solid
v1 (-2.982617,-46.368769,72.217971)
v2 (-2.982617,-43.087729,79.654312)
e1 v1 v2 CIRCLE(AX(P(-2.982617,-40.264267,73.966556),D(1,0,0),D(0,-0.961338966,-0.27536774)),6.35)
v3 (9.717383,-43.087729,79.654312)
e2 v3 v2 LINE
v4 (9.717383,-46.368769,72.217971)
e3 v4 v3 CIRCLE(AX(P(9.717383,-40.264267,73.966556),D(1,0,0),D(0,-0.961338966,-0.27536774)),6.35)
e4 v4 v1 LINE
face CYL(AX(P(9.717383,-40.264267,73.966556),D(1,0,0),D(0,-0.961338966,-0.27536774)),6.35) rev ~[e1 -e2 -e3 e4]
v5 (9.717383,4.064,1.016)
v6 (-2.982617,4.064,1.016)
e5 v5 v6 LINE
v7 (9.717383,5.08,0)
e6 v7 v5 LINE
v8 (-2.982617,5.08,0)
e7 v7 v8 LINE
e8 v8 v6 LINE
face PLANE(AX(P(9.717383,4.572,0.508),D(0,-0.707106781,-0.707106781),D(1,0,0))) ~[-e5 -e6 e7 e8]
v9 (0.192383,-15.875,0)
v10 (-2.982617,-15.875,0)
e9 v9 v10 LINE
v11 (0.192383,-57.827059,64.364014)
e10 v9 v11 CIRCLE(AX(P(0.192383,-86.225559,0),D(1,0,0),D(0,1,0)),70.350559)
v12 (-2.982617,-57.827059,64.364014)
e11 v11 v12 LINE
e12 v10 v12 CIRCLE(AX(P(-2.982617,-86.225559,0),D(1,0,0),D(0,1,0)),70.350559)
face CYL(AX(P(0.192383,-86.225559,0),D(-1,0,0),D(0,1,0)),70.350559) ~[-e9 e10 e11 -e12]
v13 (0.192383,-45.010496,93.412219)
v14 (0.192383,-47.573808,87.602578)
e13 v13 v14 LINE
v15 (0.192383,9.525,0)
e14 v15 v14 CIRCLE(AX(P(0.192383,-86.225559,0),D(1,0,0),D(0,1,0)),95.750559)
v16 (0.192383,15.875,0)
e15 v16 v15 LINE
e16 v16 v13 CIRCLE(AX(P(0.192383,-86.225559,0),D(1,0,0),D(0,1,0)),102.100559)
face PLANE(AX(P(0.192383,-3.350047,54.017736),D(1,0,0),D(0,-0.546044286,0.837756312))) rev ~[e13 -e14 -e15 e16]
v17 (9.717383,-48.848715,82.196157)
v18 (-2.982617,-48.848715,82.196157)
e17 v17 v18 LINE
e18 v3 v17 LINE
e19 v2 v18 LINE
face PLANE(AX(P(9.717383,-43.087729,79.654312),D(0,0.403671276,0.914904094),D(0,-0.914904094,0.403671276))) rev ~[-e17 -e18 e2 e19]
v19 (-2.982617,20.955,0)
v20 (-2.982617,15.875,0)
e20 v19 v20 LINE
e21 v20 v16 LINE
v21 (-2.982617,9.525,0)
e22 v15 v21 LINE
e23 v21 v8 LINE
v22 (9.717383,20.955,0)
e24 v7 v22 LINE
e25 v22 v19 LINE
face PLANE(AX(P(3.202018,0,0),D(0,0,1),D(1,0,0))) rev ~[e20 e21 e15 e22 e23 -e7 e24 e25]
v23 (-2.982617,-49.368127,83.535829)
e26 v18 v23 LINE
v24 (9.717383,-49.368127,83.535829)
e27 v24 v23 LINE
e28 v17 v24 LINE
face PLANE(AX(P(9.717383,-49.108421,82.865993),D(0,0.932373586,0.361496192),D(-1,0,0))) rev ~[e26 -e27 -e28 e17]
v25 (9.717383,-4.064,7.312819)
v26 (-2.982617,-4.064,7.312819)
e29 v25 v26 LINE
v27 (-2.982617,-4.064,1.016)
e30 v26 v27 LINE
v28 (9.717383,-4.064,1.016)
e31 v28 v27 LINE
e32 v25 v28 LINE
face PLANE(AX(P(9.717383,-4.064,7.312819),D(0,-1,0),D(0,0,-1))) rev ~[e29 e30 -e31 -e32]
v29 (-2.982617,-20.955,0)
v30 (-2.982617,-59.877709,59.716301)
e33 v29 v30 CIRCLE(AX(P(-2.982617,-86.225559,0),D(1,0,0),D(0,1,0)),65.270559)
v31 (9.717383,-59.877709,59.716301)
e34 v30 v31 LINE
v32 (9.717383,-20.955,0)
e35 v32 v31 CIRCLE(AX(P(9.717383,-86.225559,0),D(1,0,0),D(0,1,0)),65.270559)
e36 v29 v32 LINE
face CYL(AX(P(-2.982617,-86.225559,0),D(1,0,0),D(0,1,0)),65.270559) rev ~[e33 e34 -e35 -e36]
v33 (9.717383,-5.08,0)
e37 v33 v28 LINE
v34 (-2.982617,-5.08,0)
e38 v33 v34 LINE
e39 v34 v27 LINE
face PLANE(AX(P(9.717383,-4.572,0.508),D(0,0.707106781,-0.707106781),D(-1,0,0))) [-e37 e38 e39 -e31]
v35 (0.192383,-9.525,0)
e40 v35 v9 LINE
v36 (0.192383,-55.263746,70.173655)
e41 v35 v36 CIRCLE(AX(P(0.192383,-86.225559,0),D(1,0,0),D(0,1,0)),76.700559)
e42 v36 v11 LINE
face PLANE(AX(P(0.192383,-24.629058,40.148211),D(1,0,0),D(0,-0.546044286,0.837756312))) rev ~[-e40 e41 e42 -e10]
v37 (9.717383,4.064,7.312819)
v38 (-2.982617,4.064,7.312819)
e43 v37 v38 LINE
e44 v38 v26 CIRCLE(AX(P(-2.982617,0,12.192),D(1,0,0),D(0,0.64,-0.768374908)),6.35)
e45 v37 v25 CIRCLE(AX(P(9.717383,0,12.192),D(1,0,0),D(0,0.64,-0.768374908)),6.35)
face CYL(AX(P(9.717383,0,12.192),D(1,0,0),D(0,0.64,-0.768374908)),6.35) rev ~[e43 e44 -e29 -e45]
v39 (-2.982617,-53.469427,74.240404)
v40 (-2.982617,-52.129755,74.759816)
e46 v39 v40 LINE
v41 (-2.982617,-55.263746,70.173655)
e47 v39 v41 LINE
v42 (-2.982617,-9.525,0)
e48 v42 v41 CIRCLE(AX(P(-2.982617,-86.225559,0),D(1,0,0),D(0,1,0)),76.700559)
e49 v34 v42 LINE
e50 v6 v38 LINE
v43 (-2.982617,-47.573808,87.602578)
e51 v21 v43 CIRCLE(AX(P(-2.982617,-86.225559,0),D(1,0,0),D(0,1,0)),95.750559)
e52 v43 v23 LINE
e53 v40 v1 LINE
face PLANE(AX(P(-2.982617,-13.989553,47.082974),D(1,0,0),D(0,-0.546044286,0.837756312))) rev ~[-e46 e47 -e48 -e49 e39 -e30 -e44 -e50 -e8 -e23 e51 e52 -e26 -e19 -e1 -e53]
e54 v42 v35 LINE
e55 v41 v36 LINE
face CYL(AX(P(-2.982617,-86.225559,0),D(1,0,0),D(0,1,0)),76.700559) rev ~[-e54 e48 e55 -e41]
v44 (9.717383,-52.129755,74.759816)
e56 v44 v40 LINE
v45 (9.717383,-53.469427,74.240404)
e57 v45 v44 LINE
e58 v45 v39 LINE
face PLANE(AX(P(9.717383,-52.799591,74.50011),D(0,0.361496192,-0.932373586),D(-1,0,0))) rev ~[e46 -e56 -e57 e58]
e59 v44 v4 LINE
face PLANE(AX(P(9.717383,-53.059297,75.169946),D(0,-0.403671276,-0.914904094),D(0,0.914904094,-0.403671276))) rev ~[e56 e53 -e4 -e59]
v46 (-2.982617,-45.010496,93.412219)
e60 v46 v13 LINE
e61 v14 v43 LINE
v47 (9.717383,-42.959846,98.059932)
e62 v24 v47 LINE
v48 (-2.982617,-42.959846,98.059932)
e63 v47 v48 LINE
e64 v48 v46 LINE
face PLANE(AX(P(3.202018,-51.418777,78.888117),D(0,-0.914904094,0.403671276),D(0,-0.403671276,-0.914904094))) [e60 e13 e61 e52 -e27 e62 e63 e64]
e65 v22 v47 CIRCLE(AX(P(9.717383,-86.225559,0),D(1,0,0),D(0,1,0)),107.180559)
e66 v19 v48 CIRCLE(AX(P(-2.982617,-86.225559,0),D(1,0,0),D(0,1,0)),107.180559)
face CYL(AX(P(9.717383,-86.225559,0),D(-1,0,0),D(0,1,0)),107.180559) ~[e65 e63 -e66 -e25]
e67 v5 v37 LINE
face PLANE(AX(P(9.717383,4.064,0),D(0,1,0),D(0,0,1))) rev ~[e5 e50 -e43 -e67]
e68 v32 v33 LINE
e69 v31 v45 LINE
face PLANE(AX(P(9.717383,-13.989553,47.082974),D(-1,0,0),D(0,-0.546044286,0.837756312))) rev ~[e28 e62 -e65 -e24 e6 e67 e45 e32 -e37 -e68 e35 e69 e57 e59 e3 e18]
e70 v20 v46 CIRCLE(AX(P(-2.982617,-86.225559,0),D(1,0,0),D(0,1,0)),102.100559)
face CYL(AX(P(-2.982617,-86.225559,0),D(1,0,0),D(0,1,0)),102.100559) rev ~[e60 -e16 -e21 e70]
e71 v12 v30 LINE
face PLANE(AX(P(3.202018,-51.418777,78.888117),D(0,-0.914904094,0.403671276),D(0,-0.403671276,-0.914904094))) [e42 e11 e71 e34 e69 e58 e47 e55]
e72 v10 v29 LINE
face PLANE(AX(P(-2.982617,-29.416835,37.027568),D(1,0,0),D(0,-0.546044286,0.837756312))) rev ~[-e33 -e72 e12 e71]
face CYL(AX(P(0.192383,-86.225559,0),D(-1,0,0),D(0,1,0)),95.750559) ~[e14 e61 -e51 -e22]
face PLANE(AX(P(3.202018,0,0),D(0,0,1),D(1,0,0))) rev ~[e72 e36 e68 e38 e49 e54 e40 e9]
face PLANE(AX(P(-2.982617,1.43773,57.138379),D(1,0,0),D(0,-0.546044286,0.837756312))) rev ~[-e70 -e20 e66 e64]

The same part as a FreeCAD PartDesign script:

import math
import FreeCAD as App
import Part
import Sketcher
Q = App.Units.Quantity


def edges_at(feature, points):
    """Names of the edges that pass closest to the given points."""
    edges = feature.Shape.Edges
    near = lambda p: min(range(len(edges)), key=lambda i: edges[i].distToShape(Part.Vertex(*p))[0])
    return sorted({f"Edge{near(p) + 1}" for p in points})

doc = App.newDocument("Part")
params = doc.addObject("Spreadsheet::Sheet", "Params")
for row, (alias, value) in enumerate([
    ("sketch1_width", "0.5 in"),
    ("sketch1_height", "0.2 in"),
    ("sketch1_height2", "1.65 in"),
    ("sketch1_width2", "0.125 in"),
    ("sketch3_radius", "0.25 in"),
    ("sketch3_width", "0.32 in"),
    ("sketch3_length", "0.32 in"),
    ("chamfer_size", "0.04 in"),
], start=1):
    params.set(f"A{row}", alias)
    params.set(f"B{row}", "=" + value)
    params.setAlias(f"B{row}", alias)

body = doc.addObject("PartDesign::Body", "Body")

sketch1 = body.newObject("Sketcher::SketchObject", "Sketch")
sketch1.AttachmentSupport = (doc.getObject("XY_Plane"), [""])
sketch1.MapMode = "FlatFace"
sketch1.addGeometry(Part.LineSegment(App.Vector(-2.982617, -15.875, 0), App.Vector(-2.982617, -20.955, 0)), False)
sketch1.addGeometry(Part.LineSegment(App.Vector(-2.982617, -20.955, 0), App.Vector(9.717383, -20.955, 0)), False)
sketch1.addGeometry(Part.LineSegment(App.Vector(9.717383, -20.955, 0), App.Vector(9.717383, 20.955, 0)), False)
sketch1.addGeometry(Part.LineSegment(App.Vector(9.717383, 20.955, 0), App.Vector(-2.982617, 20.955, 0)), False)
sketch1.addGeometry(Part.LineSegment(App.Vector(-2.982617, 20.955, 0), App.Vector(-2.982617, 15.875, 0)), False)
sketch1.addGeometry(Part.LineSegment(App.Vector(-2.982617, 15.875, 0), App.Vector(0.192383, 15.875, 0)), False)
sketch1.addGeometry(Part.LineSegment(App.Vector(0.192383, 15.875, 0), App.Vector(0.192383, 9.525, 0)), False)
sketch1.addGeometry(Part.LineSegment(App.Vector(0.192383, 9.525, 0), App.Vector(-2.982617, 9.525, 0)), False)
sketch1.addGeometry(Part.LineSegment(App.Vector(-2.982617, 9.525, 0), App.Vector(-2.982617, -9.525, 0)), False)
sketch1.addGeometry(Part.LineSegment(App.Vector(-2.982617, -9.525, 0), App.Vector(0.192383, -9.525, 0)), False)
sketch1.addGeometry(Part.LineSegment(App.Vector(0.192383, -9.525, 0), App.Vector(0.192383, -15.875, 0)), False)
sketch1.addGeometry(Part.LineSegment(App.Vector(0.192383, -15.875, 0), App.Vector(-2.982617, -15.875, 0)), False)
sketch1.addConstraint(Sketcher.Constraint("Coincident", 0, 2, 1, 1))
sketch1.addConstraint(Sketcher.Constraint("Coincident", 1, 2, 2, 1))
sketch1.addConstraint(Sketcher.Constraint("Coincident", 2, 2, 3, 1))
sketch1.addConstraint(Sketcher.Constraint("Coincident", 3, 2, 4, 1))
sketch1.addConstraint(Sketcher.Constraint("Coincident", 4, 2, 5, 1))
sketch1.addConstraint(Sketcher.Constraint("Coincident", 5, 2, 6, 1))
sketch1.addConstraint(Sketcher.Constraint("Coincident", 6, 2, 7, 1))
sketch1.addConstraint(Sketcher.Constraint("Coincident", 7, 2, 8, 1))
sketch1.addConstraint(Sketcher.Constraint("Coincident", 8, 2, 9, 1))
sketch1.addConstraint(Sketcher.Constraint("Coincident", 9, 2, 10, 1))
sketch1.addConstraint(Sketcher.Constraint("Coincident", 10, 2, 11, 1))
sketch1.addConstraint(Sketcher.Constraint("Coincident", 11, 2, 0, 1))
sketch1.addConstraint(Sketcher.Constraint("Vertical", 0))
sketch1.addConstraint(Sketcher.Constraint("Horizontal", 1))
sketch1.addConstraint(Sketcher.Constraint("Vertical", 2))
sketch1.addConstraint(Sketcher.Constraint("Horizontal", 3))
sketch1.addConstraint(Sketcher.Constraint("Vertical", 4))
sketch1.addConstraint(Sketcher.Constraint("Horizontal", 5))
sketch1.addConstraint(Sketcher.Constraint("Vertical", 6))
sketch1.addConstraint(Sketcher.Constraint("Horizontal", 7))
sketch1.addConstraint(Sketcher.Constraint("Vertical", 8))
sketch1.addConstraint(Sketcher.Constraint("Horizontal", 9))
sketch1.addConstraint(Sketcher.Constraint("Vertical", 10))
sketch1.addConstraint(Sketcher.Constraint("Horizontal", 11))
sketch1.addConstraint(Sketcher.Constraint("Symmetric", 0, 2, 3, 2, -1))
sketch1.addConstraint(Sketcher.Constraint("Symmetric", 6, 2, 9, 2, -1))
sketch1.addConstraint(Sketcher.Constraint("Vertical", 4, 2, 7, 2))
sketch1.addConstraint(Sketcher.Constraint("Equal", 0, 4))
sketch1.addConstraint(Sketcher.Constraint("DistanceX", 1, 1, 1, 2, Q("0.5 in")))
sketch1.addConstraint(Sketcher.Constraint("DistanceY", 0, 2, 0, 1, Q("0.2 in")))
sketch1.addConstraint(Sketcher.Constraint("DistanceY", 8, 2, 4, 2, Q("1 in")))
sketch1.addConstraint(Sketcher.Constraint("DistanceY", 2, 1, 2, 2, Q("1.65 in")))
sketch1.addConstraint(Sketcher.Constraint("DistanceX", 5, 1, 5, 2, Q("0.125 in")))
sketch1.addConstraint(Sketcher.Constraint("DistanceX", 0, 2, -1, 1, Q("2.982617 mm")))
sketch1.setExpression("Constraints[28]", "Params.sketch1_width")
sketch1.setExpression("Constraints[29]", "Params.sketch1_height")
sketch1.setExpression("Constraints[31]", "Params.sketch1_height2")
sketch1.setExpression("Constraints[32]", "Params.sketch1_width2")

sketch2 = body.newObject("Sketcher::SketchObject", "Sketch001")
sketch2.AttachmentSupport = (doc.getObject("YZ_Plane"), [""])
sketch2.MapMode = "FlatFace"
sketch2.addGeometry(Part.ArcOfCircle(Part.Circle(App.Vector(-86.225559, 0, 0), App.Vector(0, 0, 1), 86.225559), math.radians(0), math.radians(66.192111)), False)
sketch2.addConstraint(Sketcher.Constraint("Coincident", 0, 1, -1, 1))
sketch2.addConstraint(Sketcher.Constraint("PointOnObject", 0, 3, -1))
sketch2.addConstraint(Sketcher.Constraint("Radius", 0, Q("86.225559 mm")))
sketch2.addConstraint(Sketcher.Constraint("DistanceX", 0, 3, 0, 2, Q("34.806781 mm")))
doc.recompute()

additivepipe = body.newObject("PartDesign::AdditivePipe", "AdditivePipe")
additivepipe.Profile = sketch1
additivepipe.Spine = (sketch2, ["Edge1"])

sketch3 = body.newObject("Sketcher::SketchObject", "Sketch002")
sketch3.AttachmentSupport = (doc.getObject("YZ_Plane"), [""])
sketch3.MapMode = "FlatFace"
sketch3.AttachmentOffset = App.Placement(App.Vector(0, 0, 9.717383), App.Rotation())
sketch3.addGeometry(Part.LineSegment(App.Vector(-4.064, 7.312819, 0), App.Vector(-4.064, 0, 0)), False)
sketch3.addGeometry(Part.LineSegment(App.Vector(-4.064, 0, 0), App.Vector(4.064, 0, 0)), False)
sketch3.addGeometry(Part.LineSegment(App.Vector(4.064, 0, 0), App.Vector(4.064, 7.312819, 0)), False)
sketch3.addGeometry(Part.ArcOfCircle(Part.Circle(App.Vector(0, 12.192, 0), App.Vector(0, 0, 1), 6.35), math.radians(-50.208181), math.radians(230.208181)), False)
sketch3.addGeometry(Part.LineSegment(App.Vector(-43.087729, 79.654312, 0), App.Vector(-49.778257, 82.606287, 0)), False)
sketch3.addGeometry(Part.LineSegment(App.Vector(-49.778257, 82.606287, 0), App.Vector(-53.059297, 75.169946, 0)), False)
sketch3.addGeometry(Part.LineSegment(App.Vector(-53.059297, 75.169946, 0), App.Vector(-46.368769, 72.217971, 0)), False)
sketch3.addGeometry(Part.ArcOfCircle(Part.Circle(App.Vector(-40.264267, 73.966556, 0), App.Vector(0, 0, 1), 6.35), math.radians(-164.01607), math.radians(116.400291)), False)
sketch3.addConstraint(Sketcher.Constraint("Coincident", 0, 2, 1, 1))
sketch3.addConstraint(Sketcher.Constraint("Coincident", 1, 2, 2, 1))
sketch3.addConstraint(Sketcher.Constraint("Coincident", 2, 2, 3, 1))
sketch3.addConstraint(Sketcher.Constraint("Coincident", 3, 2, 0, 1))
sketch3.addConstraint(Sketcher.Constraint("Coincident", 4, 2, 5, 1))
sketch3.addConstraint(Sketcher.Constraint("Coincident", 5, 2, 6, 1))
sketch3.addConstraint(Sketcher.Constraint("Coincident", 6, 2, 7, 1))
sketch3.addConstraint(Sketcher.Constraint("Coincident", 7, 2, 4, 1))
sketch3.addConstraint(Sketcher.Constraint("Vertical", 0))
sketch3.addConstraint(Sketcher.Constraint("Horizontal", 1))
sketch3.addConstraint(Sketcher.Constraint("Vertical", 2))
sketch3.addConstraint(Sketcher.Constraint("Equal", 3, 7))
sketch3.addConstraint(Sketcher.Constraint("Symmetric", 0, 2, 1, 2, -1, 1))
sketch3.addConstraint(Sketcher.Constraint("PointOnObject", 3, 3, -2))
sketch3.addConstraint(Sketcher.Constraint("Perpendicular", 4, 5))
sketch3.addConstraint(Sketcher.Constraint("Perpendicular", 5, 6))
sketch3.addConstraint(Sketcher.Constraint("Equal", 4, 6))
sketch3.addConstraint(Sketcher.Constraint("Radius", 3, Q("0.25 in")))
sketch3.addConstraint(Sketcher.Constraint("DistanceX", 1, 1, 1, 2, Q("0.32 in")))
sketch3.addConstraint(Sketcher.Constraint("Distance", 5, Q("0.32 in")))
sketch3.addConstraint(Sketcher.Constraint("DistanceY", -1, 1, 3, 3, Q("0.48 in")))
sketch3.addConstraint(Sketcher.Constraint("Distance", 4, Q("7.312819 mm")))
sketch3.addConstraint(Sketcher.Constraint("DistanceX", 6, 2, -1, 1, Q("46.368769 mm")))
sketch3.addConstraint(Sketcher.Constraint("DistanceY", -1, 1, 6, 2, Q("72.217971 mm")))
sketch3.addConstraint(Sketcher.Constraint("DistanceX", 7, 2, -1, 1, Q("43.087729 mm")))
sketch3.setExpression("Constraints[17]", "Params.sketch3_radius")
sketch3.setExpression("Constraints[18]", "Params.sketch3_width")
sketch3.setExpression("Constraints[19]", "Params.sketch3_length")
pocket1 = body.newObject("PartDesign::Pocket", "Pocket")
pocket1.Profile = sketch3
pocket1.Type = "ThroughAll"
doc.recompute()

chamfer = body.newObject("PartDesign::Chamfer", "Chamfer")
chamfer.Base = (pocket1, edges_at(pocket1, [
    (3.367, -53.059, 75.17),
    (3.367, -49.778, 82.606),
    (3.367, 4.064, 0),
    (3.367, -4.064, 0),
]))
chamfer.setExpression("Size", "Params.chamfer_size")

doc.recompute()
